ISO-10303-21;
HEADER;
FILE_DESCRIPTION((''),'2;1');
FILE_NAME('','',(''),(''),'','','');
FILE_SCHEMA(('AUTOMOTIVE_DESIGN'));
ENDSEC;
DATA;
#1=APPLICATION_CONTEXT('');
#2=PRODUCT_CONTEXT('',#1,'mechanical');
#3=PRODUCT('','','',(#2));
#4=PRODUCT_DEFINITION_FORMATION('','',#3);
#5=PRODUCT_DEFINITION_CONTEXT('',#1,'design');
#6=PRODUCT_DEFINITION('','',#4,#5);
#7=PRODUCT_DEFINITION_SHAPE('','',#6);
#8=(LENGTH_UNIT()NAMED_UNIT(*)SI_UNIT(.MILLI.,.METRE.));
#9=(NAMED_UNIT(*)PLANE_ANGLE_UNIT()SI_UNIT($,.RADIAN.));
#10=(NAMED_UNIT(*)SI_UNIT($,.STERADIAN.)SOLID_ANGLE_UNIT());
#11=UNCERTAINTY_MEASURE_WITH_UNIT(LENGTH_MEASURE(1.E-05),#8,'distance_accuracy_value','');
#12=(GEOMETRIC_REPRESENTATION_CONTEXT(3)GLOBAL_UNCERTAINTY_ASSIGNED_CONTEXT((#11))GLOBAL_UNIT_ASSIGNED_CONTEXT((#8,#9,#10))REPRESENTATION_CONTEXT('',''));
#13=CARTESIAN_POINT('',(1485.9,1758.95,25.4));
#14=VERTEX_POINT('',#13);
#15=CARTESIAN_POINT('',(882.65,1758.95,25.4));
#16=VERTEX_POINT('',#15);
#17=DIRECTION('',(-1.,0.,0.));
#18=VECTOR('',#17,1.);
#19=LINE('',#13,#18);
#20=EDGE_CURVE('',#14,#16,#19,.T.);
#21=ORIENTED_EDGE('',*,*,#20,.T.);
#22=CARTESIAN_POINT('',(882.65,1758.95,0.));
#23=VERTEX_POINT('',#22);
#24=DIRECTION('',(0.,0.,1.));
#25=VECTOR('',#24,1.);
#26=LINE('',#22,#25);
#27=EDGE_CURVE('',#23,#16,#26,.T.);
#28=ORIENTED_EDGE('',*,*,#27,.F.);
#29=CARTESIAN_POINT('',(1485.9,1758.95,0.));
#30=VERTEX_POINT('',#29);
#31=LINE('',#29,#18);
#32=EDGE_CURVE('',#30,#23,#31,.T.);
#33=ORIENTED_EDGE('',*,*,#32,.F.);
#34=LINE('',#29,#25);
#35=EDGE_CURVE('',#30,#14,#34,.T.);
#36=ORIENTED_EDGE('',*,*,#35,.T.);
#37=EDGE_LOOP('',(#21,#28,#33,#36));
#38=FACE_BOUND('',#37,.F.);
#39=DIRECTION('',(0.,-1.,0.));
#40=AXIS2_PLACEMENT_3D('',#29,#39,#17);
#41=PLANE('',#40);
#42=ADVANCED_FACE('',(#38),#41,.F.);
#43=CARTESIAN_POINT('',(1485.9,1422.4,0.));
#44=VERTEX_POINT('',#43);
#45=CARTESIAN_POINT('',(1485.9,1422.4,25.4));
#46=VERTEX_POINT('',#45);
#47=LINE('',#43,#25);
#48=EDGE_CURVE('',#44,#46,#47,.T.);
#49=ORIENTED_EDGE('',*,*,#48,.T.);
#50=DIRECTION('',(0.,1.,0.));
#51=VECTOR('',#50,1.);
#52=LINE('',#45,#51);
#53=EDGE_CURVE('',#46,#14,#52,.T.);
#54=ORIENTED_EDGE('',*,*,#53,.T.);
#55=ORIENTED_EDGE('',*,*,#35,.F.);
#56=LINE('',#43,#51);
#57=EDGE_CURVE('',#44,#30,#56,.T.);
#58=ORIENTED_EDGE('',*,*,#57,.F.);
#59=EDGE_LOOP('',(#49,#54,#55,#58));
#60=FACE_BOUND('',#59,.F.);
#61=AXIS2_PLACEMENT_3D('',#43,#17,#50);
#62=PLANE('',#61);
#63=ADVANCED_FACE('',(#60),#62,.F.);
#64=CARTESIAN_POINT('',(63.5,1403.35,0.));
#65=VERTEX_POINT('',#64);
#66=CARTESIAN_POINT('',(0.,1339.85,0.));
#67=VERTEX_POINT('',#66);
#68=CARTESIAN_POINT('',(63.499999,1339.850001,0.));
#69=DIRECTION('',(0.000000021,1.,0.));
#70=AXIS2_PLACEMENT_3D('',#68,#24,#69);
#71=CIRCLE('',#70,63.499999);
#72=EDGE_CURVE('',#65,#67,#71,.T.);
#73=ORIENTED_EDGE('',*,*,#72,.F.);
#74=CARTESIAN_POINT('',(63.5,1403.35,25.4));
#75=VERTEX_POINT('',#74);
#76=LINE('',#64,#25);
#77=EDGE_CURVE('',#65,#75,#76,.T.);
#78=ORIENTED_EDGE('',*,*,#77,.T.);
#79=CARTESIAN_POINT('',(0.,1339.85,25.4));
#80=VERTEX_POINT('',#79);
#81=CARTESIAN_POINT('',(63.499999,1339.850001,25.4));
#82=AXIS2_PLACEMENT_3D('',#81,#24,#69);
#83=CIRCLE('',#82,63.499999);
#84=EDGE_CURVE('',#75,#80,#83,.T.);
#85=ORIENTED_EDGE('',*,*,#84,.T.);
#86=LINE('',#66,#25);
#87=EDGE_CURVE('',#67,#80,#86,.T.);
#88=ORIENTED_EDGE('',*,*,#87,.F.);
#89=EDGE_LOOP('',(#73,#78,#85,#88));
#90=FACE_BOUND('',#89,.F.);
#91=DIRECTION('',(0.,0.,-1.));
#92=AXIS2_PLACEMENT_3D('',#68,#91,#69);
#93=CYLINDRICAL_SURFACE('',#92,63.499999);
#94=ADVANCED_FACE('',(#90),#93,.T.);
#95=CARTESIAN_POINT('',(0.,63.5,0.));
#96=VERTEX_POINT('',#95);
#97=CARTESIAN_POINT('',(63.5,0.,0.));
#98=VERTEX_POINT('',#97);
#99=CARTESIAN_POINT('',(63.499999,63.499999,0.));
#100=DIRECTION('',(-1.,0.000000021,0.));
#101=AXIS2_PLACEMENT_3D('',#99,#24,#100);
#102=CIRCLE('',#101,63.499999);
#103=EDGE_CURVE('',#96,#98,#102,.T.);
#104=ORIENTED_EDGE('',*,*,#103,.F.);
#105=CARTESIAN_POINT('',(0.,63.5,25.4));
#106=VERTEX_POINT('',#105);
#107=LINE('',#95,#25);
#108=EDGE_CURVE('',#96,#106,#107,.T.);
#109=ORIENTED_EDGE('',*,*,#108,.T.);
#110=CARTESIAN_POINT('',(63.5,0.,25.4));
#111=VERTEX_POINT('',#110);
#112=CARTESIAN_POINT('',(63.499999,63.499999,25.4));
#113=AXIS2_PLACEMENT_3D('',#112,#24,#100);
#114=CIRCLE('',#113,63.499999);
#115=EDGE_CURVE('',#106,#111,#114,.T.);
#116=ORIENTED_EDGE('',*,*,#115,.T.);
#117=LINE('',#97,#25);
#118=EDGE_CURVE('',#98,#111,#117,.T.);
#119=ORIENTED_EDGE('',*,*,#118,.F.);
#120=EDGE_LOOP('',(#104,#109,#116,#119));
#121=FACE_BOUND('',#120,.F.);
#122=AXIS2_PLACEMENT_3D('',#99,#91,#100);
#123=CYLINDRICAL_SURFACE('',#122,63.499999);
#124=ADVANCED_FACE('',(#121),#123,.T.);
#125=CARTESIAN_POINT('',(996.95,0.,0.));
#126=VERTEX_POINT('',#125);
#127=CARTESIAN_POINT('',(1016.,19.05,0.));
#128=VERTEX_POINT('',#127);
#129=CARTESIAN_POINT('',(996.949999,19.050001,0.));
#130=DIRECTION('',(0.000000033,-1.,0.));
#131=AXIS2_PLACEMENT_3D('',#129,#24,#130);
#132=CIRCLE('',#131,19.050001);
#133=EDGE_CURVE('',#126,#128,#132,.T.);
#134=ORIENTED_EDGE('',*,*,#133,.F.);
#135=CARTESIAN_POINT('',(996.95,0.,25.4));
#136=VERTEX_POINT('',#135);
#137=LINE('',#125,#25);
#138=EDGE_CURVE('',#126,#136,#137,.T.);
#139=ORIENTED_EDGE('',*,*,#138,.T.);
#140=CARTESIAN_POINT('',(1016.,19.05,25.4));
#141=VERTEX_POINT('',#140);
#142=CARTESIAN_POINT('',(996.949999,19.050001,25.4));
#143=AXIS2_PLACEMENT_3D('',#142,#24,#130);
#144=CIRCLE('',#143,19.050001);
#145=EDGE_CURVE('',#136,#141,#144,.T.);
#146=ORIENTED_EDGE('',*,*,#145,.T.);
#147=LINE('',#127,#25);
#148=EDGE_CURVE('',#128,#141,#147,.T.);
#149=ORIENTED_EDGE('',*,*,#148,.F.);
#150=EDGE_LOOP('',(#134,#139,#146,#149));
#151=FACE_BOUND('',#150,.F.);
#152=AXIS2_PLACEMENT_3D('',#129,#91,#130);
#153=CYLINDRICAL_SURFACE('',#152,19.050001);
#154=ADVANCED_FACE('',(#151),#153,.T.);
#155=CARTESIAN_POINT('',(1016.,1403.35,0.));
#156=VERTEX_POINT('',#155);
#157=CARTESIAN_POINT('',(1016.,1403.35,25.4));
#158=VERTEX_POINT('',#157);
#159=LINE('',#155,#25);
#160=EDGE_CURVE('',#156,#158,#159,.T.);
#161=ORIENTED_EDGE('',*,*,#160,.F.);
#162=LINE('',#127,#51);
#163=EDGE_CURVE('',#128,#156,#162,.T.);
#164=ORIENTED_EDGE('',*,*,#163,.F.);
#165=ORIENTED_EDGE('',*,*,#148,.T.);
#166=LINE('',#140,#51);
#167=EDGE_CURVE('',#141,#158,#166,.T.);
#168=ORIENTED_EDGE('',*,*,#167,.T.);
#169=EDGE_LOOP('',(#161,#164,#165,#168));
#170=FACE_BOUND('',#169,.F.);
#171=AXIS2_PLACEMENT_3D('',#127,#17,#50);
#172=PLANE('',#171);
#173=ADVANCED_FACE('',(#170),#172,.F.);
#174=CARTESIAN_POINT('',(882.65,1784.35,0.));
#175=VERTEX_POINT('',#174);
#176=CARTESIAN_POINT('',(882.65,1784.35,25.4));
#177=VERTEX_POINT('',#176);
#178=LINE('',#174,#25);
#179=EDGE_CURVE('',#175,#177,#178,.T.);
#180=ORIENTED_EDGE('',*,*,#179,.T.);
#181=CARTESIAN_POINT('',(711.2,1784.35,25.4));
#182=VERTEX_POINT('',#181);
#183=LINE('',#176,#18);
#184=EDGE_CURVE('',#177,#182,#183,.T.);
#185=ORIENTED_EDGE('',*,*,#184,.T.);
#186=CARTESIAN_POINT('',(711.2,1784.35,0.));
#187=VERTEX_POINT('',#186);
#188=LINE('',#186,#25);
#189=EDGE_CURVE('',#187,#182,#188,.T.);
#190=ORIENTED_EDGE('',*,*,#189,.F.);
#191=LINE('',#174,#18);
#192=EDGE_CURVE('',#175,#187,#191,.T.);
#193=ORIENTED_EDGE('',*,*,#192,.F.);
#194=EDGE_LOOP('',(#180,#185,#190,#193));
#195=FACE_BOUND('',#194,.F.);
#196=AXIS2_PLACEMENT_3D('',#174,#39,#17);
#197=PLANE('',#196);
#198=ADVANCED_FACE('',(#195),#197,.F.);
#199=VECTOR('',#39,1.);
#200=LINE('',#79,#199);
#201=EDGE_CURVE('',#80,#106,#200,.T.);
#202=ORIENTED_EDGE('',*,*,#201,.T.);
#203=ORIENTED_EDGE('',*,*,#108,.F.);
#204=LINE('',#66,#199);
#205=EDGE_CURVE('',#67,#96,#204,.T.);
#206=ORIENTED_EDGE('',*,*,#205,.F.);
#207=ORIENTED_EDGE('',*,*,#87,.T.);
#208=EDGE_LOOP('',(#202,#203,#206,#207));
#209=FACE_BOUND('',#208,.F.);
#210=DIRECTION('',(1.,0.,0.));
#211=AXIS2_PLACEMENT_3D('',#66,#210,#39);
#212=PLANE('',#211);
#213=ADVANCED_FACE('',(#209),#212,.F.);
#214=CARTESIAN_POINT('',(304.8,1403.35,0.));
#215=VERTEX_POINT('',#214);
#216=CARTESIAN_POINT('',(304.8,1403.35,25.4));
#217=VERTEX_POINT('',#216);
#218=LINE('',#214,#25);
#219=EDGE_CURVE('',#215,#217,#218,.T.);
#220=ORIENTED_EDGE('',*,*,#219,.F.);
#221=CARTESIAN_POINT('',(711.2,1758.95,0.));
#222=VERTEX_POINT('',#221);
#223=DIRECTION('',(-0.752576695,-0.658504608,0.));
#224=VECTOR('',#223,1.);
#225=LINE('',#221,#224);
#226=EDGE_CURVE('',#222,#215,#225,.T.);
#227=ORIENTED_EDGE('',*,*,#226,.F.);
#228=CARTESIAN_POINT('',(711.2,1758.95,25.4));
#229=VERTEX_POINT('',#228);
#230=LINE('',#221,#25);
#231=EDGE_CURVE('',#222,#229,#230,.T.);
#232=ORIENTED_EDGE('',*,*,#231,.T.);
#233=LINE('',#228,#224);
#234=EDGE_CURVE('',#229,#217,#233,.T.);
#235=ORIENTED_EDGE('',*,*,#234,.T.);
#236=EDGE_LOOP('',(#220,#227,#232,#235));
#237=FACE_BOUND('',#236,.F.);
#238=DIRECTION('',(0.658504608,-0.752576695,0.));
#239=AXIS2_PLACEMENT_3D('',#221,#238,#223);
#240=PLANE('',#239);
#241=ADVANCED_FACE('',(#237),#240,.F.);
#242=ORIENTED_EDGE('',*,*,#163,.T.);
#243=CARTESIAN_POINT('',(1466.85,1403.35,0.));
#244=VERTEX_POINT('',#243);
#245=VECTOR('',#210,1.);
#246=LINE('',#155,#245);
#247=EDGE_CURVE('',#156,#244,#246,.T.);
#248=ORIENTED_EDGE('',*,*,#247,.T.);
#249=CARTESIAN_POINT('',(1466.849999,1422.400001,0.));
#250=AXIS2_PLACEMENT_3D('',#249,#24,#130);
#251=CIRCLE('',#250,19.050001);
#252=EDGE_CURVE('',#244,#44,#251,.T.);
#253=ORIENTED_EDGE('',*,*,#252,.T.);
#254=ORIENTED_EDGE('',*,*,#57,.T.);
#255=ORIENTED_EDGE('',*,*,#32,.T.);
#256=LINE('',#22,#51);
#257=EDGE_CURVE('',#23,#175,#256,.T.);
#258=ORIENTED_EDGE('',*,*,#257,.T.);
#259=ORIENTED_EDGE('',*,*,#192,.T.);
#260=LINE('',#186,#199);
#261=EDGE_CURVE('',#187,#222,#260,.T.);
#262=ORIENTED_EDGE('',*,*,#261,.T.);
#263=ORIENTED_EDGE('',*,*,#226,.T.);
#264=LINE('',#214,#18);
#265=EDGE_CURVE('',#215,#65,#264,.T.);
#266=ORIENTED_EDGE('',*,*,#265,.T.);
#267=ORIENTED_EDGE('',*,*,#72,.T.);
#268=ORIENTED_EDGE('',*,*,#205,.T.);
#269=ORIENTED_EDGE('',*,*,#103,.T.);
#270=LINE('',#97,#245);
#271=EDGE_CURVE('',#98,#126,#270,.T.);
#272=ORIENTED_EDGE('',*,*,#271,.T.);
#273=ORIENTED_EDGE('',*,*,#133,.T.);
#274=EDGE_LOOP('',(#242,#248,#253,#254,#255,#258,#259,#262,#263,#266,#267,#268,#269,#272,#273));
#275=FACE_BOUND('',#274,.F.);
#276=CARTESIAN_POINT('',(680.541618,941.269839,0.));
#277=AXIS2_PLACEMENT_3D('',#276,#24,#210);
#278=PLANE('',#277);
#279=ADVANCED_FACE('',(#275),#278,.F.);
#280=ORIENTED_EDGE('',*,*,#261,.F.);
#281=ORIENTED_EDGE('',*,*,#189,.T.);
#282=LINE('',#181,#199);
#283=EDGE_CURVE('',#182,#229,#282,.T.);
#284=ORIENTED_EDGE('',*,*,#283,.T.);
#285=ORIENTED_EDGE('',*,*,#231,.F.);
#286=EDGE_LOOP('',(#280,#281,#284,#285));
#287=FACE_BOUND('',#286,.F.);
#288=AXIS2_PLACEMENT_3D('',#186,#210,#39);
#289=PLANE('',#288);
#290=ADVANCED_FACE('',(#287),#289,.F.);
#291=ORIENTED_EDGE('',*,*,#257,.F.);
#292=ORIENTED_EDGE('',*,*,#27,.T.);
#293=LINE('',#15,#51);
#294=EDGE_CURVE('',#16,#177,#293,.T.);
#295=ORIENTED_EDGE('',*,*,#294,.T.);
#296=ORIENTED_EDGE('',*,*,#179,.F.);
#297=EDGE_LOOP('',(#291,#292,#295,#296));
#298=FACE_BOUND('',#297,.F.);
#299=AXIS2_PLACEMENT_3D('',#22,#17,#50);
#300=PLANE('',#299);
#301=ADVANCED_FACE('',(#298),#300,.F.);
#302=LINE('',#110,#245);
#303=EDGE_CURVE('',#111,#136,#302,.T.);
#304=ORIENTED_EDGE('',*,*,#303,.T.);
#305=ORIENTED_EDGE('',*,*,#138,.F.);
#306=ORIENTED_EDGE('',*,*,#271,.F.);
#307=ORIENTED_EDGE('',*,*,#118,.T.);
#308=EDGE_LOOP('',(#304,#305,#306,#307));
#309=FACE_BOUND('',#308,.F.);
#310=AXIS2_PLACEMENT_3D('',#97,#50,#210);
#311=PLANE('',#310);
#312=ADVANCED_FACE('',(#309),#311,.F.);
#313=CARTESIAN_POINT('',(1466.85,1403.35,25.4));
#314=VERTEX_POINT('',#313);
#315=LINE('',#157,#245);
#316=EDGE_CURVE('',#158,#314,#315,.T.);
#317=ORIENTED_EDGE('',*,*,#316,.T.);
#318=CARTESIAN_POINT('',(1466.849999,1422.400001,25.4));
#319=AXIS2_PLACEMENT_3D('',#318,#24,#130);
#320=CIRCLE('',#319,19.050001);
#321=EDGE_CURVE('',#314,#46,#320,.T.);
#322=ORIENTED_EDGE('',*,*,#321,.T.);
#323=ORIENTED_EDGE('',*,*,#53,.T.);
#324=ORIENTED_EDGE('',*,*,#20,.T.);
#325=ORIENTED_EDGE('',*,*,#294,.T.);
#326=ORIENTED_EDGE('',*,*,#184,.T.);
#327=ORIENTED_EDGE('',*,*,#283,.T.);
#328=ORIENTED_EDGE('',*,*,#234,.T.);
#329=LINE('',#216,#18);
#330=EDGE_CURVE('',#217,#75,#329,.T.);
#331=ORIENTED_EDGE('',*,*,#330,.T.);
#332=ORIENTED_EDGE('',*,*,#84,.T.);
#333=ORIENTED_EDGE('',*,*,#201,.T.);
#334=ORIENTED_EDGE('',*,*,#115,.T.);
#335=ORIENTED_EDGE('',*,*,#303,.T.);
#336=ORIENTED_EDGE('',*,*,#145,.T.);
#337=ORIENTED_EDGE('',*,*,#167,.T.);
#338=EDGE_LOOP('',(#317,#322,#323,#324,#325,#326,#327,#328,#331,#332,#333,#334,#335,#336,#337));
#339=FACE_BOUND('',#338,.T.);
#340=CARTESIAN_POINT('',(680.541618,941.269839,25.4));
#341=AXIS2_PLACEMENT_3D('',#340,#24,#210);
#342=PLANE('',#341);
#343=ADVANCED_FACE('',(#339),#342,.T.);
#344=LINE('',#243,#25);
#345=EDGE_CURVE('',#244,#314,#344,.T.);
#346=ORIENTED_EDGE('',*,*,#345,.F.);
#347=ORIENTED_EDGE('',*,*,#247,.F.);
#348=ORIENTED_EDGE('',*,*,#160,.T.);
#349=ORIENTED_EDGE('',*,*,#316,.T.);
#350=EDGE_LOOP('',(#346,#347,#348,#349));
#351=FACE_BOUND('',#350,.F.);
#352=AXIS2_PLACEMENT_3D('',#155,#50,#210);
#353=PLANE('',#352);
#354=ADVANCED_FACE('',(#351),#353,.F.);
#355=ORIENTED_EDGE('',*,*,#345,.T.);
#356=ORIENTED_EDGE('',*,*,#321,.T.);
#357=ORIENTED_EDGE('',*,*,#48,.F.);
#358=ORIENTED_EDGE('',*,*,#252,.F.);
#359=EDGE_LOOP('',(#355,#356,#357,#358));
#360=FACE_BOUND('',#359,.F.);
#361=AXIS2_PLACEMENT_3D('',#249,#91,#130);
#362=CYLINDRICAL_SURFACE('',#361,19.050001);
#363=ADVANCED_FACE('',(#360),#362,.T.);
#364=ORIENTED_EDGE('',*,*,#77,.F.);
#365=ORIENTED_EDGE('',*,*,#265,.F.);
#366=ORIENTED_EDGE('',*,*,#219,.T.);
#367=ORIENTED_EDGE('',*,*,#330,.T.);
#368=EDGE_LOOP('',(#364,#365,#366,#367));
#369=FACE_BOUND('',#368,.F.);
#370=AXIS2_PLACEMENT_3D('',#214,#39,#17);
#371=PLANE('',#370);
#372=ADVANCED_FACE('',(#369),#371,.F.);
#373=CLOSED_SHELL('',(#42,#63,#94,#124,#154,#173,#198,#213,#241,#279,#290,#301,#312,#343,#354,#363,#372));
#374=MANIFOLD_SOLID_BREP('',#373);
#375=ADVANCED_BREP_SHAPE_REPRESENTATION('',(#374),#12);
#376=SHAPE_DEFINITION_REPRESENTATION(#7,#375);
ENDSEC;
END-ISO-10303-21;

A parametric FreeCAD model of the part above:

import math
import FreeCAD as App
import Part
import Sketcher
Q = App.Units.Quantity

doc = App.newDocument("Part")
body = doc.addObject("PartDesign::Body", "Body")

# Sketch on XY plane
sketch1 = body.newObject("Sketcher::SketchObject", "Sketch")
sketch1.AttachmentSupport = (doc.getObject("XY_Plane"), [""])
sketch1.MapMode = "FlatFace"
sketch1.addGeometry([
    Part.ArcOfCircle(Part.Circle(App.Vector(63.499999, 1339.850001, 0), App.Vector(0, 0, 1), 63.499999), math.radians(89.999999), math.radians(180.000001)),  # 0
    Part.LineSegment(App.Vector(0, 1339.85, 0), App.Vector(0, 63.5, 0)),  # 1
    Part.ArcOfCircle(Part.Circle(App.Vector(63.499999, 63.499999, 0), App.Vector(0, 0, 1), 63.499999), math.radians(179.999999), math.radians(270.000001)),  # 2
    Part.LineSegment(App.Vector(63.5, 0, 0), App.Vector(996.95, 0, 0)),  # 3
    Part.ArcOfCircle(Part.Circle(App.Vector(996.949999, 19.050001, 0), App.Vector(0, 0, 1), 19.050001), math.radians(-89.999998), math.radians(-0.000002)),  # 4
    Part.LineSegment(App.Vector(1016, 19.05, 0), App.Vector(1016, 1403.35, 0)),  # 5
    Part.LineSegment(App.Vector(1016, 1403.35, 0), App.Vector(1466.85, 1403.35, 0)),  # 6
    Part.ArcOfCircle(Part.Circle(App.Vector(1466.849999, 1422.400001, 0), App.Vector(0, 0, 1), 19.050001), math.radians(-89.999998), math.radians(-0.000002)),  # 7
    Part.LineSegment(App.Vector(1485.9, 1422.4, 0), App.Vector(1485.9, 1758.95, 0)),  # 8
    Part.LineSegment(App.Vector(1485.9, 1758.95, 0), App.Vector(882.65, 1758.95, 0)),  # 9
    Part.LineSegment(App.Vector(882.65, 1758.95, 0), App.Vector(882.65, 1784.35, 0)),  # 10
    Part.LineSegment(App.Vector(882.65, 1784.35, 0), App.Vector(711.2, 1784.35, 0)),  # 11
    Part.LineSegment(App.Vector(711.2, 1784.35, 0), App.Vector(711.2, 1758.95, 0)),  # 12
    Part.LineSegment(App.Vector(711.2, 1758.95, 0), App.Vector(304.8, 1403.35, 0)),  # 13
    Part.LineSegment(App.Vector(304.8, 1403.35, 0), App.Vector(63.5, 1403.35, 0)),  # 14
], False)
sketch1.addConstraint([
    Sketcher.Constraint("Tangent", 0, 2, 1, 1),
    Sketcher.Constraint("Tangent", 1, 2, 2, 1),
    Sketcher.Constraint("Tangent", 2, 2, 3, 1),
    Sketcher.Constraint("Tangent", 3, 2, 4, 1),
    Sketcher.Constraint("Tangent", 4, 2, 5, 1),
    Sketcher.Constraint("Coincident", 5, 2, 6, 1),
    Sketcher.Constraint("Tangent", 6, 2, 7, 1),
    Sketcher.Constraint("Tangent", 7, 2, 8, 1),
    Sketcher.Constraint("Coincident", 8, 2, 9, 1),
    Sketcher.Constraint("Coincident", 9, 2, 10, 1),
    Sketcher.Constraint("Coincident", 10, 2, 11, 1),
    Sketcher.Constraint("Coincident", 11, 2, 12, 1),
    Sketcher.Constraint("Coincident", 12, 2, 13, 1),
    Sketcher.Constraint("Coincident", 13, 2, 14, 1),
    Sketcher.Constraint("Tangent", 14, 2, 0, 1),
    Sketcher.Constraint("Vertical", 1),
    Sketcher.Constraint("Horizontal", 3),
    Sketcher.Constraint("Vertical", 5),
    Sketcher.Constraint("Horizontal", 6),
    Sketcher.Constraint("Vertical", 8),
    Sketcher.Constraint("Horizontal", 9),
    Sketcher.Constraint("Vertical", 10),
    Sketcher.Constraint("Horizontal", 11),
    Sketcher.Constraint("Vertical", 12),
    Sketcher.Constraint("Horizontal", 14),
    Sketcher.Constraint("Equal", 0, 2),
    Sketcher.Constraint("Equal", 4, 7),
    Sketcher.Constraint("PointOnObject", 0, 2, -2),
    Sketcher.Constraint("PointOnObject", 2, 2, -1),
    Sketcher.Constraint("Horizontal", 9, 2, 12, 2),
    Sketcher.Constraint("Horizontal", 6, 2, 13, 2),
    Sketcher.Constraint("Radius", 0, Q("2.4999999 in")),
    Sketcher.Constraint("DistanceY", 10, 1, 10, 2, Q("1 in")),
    Sketcher.Constraint("Radius", 4, Q("0.75 in")),
    Sketcher.Constraint("DistanceX", 14, 2, 14, 1, Q("9.5 in")),
    Sketcher.Constraint("DistanceY", 5, 1, 5, 2, Q("54.5 in")),
    Sketcher.Constraint("DistanceX", -1, 1, 4, 2, Q("40 in")),
    Sketcher.Constraint("DistanceX", -1, 1, 11, 2, Q("28 in")),
    Sketcher.Constraint("DistanceX", 0, 3, 7, 2, Q("56.0000001 in")),
    Sketcher.Constraint("DistanceY", 6, 2, 8, 2, Q("14 in")),
    Sketcher.Constraint("DistanceX", 9, 2, 7, 3, Q("23 in")),
])
pad1 = body.newObject("PartDesign::Pad", "Pad")
pad1.Profile = sketch1
pad1.Length = Q("1 in")

doc.recompute()
